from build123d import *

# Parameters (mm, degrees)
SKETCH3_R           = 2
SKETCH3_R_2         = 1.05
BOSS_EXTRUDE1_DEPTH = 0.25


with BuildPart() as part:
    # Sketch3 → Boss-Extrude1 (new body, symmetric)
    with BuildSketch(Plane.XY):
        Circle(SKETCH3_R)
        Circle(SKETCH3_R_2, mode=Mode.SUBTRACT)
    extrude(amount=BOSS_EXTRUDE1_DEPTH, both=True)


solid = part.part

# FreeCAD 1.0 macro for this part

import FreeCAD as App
import Part
import Sketcher

doc = App.newDocument("Part")
params = doc.addObject("Spreadsheet::Sheet", "Params")
for row, (alias, value) in enumerate([
    ("sketch1_diameter", "4 mm"),
    ("sketch1_diameter2", "2.1 mm"),
    ("pad1_length", "0.5 mm"),
], start=1):
    params.set(f"A{row}", alias)
    params.set(f"B{row}", "=" + value)
    params.setAlias(f"B{row}", alias)

body = doc.addObject("PartDesign::Body", "Body")

sketch1 = body.newObject("Sketcher::SketchObject", "Sketch")
sketch1.AttachmentSupport = (doc.getObject("XY_Plane"), [""])
sketch1.MapMode = "FlatFace"
sketch1.addGeometry(Part.Circle(App.Vector(0, 0, 0), App.Vector(0, 0, 1), 2), False)
sketch1.addGeometry(Part.Circle(App.Vector(0, 0, 0), App.Vector(0, 0, 1), 1.1), False)
sketch1.addConstraint(Sketcher.Constraint("Coincident", 0, 3, -1, 1))
sketch1.addConstraint(Sketcher.Constraint("Coincident", 1, 3, -1, 1))
sketch1.addConstraint(Sketcher.Constraint("Diameter", 0, 4.0))
sketch1.addConstraint(Sketcher.Constraint("Diameter", 1, 2.1))
sketch1.setExpression("Constraints[2]", "Params.sketch1_diameter")
sketch1.setExpression("Constraints[3]", "Params.sketch1_diameter2")
pad1 = body.newObject("PartDesign::Pad", "Pad")
pad1.Profile = sketch1
pad1.setExpression("Length", "Params.pad1_length")
pad1.Midplane = True

doc.recompute()
